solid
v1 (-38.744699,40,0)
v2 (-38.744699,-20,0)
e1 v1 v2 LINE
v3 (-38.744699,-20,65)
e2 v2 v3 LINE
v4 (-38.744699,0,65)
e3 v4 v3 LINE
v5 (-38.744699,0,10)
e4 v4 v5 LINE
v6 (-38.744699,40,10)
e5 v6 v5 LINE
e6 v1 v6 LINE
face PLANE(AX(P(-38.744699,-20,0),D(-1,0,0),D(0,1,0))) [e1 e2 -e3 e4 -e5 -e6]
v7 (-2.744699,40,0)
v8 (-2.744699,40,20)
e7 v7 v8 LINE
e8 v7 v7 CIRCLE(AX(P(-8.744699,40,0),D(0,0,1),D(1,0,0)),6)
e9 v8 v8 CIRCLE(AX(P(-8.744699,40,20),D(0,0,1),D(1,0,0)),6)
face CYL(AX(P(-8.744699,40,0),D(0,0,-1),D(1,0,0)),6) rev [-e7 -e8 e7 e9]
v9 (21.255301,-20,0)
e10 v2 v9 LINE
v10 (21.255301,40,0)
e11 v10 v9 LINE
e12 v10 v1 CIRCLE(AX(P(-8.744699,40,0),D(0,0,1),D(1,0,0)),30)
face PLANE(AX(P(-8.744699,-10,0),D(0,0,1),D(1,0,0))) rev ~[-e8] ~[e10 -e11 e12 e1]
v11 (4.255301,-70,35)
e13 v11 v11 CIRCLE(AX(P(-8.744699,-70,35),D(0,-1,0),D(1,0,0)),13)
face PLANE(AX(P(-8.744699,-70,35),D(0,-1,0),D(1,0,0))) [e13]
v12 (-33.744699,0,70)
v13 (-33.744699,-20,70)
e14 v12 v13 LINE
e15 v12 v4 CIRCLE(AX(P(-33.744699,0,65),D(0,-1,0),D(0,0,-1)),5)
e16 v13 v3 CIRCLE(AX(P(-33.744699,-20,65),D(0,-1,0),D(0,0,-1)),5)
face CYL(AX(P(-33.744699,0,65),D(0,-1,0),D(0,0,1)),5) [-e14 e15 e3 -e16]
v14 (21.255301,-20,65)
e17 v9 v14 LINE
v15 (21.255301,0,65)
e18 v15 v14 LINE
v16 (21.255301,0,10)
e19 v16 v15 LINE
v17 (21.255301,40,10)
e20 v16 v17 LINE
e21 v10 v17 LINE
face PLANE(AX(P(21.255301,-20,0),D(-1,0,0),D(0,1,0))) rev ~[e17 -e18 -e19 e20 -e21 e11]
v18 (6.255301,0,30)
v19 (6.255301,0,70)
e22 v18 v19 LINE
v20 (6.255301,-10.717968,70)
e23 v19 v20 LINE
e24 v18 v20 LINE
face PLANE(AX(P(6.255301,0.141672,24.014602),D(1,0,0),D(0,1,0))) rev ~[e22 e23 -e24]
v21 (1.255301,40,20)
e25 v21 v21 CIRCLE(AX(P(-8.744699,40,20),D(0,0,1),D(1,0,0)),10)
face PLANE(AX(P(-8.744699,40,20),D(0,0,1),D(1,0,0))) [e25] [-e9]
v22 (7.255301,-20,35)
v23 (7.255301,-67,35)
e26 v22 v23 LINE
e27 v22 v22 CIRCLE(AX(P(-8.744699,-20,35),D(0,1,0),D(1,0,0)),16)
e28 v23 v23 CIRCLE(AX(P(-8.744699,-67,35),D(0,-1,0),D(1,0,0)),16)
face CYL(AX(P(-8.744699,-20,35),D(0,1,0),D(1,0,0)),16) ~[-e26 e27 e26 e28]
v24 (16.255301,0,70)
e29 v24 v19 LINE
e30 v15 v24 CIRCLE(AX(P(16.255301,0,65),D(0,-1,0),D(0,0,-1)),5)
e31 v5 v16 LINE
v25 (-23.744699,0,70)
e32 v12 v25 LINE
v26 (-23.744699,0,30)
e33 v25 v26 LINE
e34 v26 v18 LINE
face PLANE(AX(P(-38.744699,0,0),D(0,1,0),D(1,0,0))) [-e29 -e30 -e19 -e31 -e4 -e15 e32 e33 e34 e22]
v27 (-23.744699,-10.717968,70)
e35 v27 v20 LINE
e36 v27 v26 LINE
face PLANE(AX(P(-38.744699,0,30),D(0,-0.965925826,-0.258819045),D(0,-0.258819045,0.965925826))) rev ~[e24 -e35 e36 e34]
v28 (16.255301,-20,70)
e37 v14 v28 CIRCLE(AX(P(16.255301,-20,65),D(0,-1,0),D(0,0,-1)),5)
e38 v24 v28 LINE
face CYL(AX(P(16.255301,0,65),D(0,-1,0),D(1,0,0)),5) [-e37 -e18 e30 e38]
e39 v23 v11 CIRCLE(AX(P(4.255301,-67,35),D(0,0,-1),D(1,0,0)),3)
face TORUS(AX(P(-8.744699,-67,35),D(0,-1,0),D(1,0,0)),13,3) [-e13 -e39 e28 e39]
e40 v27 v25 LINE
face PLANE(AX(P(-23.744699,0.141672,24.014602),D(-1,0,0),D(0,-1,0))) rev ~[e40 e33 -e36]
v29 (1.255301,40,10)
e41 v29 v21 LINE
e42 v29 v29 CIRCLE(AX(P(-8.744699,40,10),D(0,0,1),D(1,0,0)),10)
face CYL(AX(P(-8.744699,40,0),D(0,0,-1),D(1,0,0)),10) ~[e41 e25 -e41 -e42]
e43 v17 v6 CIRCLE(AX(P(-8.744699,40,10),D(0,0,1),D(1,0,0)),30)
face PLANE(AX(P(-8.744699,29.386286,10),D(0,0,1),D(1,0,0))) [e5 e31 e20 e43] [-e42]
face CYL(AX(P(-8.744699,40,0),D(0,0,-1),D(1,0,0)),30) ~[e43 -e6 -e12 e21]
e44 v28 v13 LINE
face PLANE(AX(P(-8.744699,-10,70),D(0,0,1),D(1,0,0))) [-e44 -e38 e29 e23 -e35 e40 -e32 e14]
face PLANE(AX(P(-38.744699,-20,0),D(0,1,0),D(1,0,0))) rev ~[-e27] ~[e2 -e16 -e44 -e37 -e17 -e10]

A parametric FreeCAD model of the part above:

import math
import FreeCAD as App
import Part
import Sketcher
Q = App.Units.Quantity


def edges_at(feature, points):
    """Names of the edges that pass closest to the given points."""
    edges = feature.Shape.Edges
    near = lambda p: min(range(len(edges)), key=lambda i: edges[i].distToShape(Part.Vertex(*p))[0])
    return sorted({f"Edge{near(p) + 1}" for p in points})


def add_polygon(sketch, points):
    """Adds a closed chain of lines whose ends are joined by coincident constraints."""
    first, n = sketch.GeometryCount, len(points)
    for a, b in zip(points, points[1:] + points[:1]):
        sketch.addGeometry(Part.LineSegment(App.Vector(*a, 0), App.Vector(*b, 0)), False)
    for i in range(n):
        sketch.addConstraint(Sketcher.Constraint("Coincident", first + i, 2, first + (i + 1) % n, 1))

doc = App.newDocument("Part")
body = doc.addObject("PartDesign::Body", "Body")

# Sketch on XY plane
sketch1 = body.newObject("Sketcher::SketchObject", "Sketch")
sketch1.AttachmentSupport = (doc.getObject("XY_Plane"), [""])
sketch1.MapMode = "FlatFace"
sketch1.addGeometry(Part.LineSegment(App.Vector(-38.744699, 40, 0), App.Vector(-38.744699, 0, 0)), False)
sketch1.addGeometry(Part.LineSegment(App.Vector(-38.744699, 0, 0), App.Vector(21.255301, 0, 0)), False)
sketch1.addGeometry(Part.LineSegment(App.Vector(21.255301, 0, 0), App.Vector(21.255301, 40, 0)), False)
sketch1.addGeometry(Part.ArcOfCircle(Part.Circle(App.Vector(-8.744699, 40, 0), App.Vector(0, 0, 1), 30), math.radians(0), math.radians(180)), False)
sketch1.addGeometry(Part.Circle(App.Vector(-8.744699, 40, 0), App.Vector(0, 0, 1), 10), False)
sketch1.addConstraint(Sketcher.Constraint("Coincident", 0, 2, 1, 1))
sketch1.addConstraint(Sketcher.Constraint("Coincident", 1, 2, 2, 1))
sketch1.addConstraint(Sketcher.Constraint("Tangent", 2, 2, 3, 1))
sketch1.addConstraint(Sketcher.Constraint("Tangent", 3, 2, 0, 1))
sketch1.addConstraint(Sketcher.Constraint("Vertical", 0))
sketch1.addConstraint(Sketcher.Constraint("Horizontal", 1))
sketch1.addConstraint(Sketcher.Constraint("Vertical", 2))
sketch1.addConstraint(Sketcher.Constraint("Coincident", 4, 3, 3, 3))
sketch1.addConstraint(Sketcher.Constraint("PointOnObject", 0, 2, -1))
sketch1.addConstraint(Sketcher.Constraint("Diameter", 4, 20.0))
sketch1.addConstraint(Sketcher.Constraint("Radius", 3, 30.0))
sketch1.addConstraint(Sketcher.Constraint("DistanceY", 0, 2, 0, 1, 40.0))
sketch1.addConstraint(Sketcher.Constraint("DistanceX", 3, 3, -1, 1, 8.744699))
pad1 = body.newObject("PartDesign::Pad", "Pad")
pad1.Profile = sketch1
pad1.Length = 10

# Sketch on XY plane
sketch2 = body.newObject("Sketcher::SketchObject", "Sketch001")
sketch2.AttachmentSupport = (doc.getObject("XY_Plane"), [""])
sketch2.MapMode = "FlatFace"
sketch2.addGeometry(Part.Circle(App.Vector(-8.744699, 40, 0), App.Vector(0, 0, 1), 10), False)
sketch2.addGeometry(Part.Circle(App.Vector(-8.744699, 40, 0), App.Vector(0, 0, 1), 6), False)
sketch2.addConstraint(Sketcher.Constraint("Coincident", 1, 3, 0, 3))
sketch2.addConstraint(Sketcher.Constraint("Diameter", 0, 20.0))
sketch2.addConstraint(Sketcher.Constraint("Diameter", 1, 12.0))
sketch2.addConstraint(Sketcher.Constraint("DistanceY", -1, 1, 0, 3, 40.0))
sketch2.addConstraint(Sketcher.Constraint("DistanceX", 0, 3, -1, 1, 8.744699))
pad2 = body.newObject("PartDesign::Pad", "Pad001")
pad2.Profile = sketch2
pad2.Length = 20

# Sketch on XY plane
sketch3 = body.newObject("Sketcher::SketchObject", "Sketch002")
sketch3.AttachmentSupport = (doc.getObject("XY_Plane"), [""])
sketch3.MapMode = "FlatFace"
add_polygon(sketch3, [(-38.744699, 0), (-38.744699, -20), (21.255301, -20), (21.255301, 0)])  # lines 0-3
sketch3.addConstraint(Sketcher.Constraint("Vertical", 0))
sketch3.addConstraint(Sketcher.Constraint("Horizontal", 1))
sketch3.addConstraint(Sketcher.Constraint("Vertical", 2))
sketch3.addConstraint(Sketcher.Constraint("Horizontal", 3))
sketch3.addConstraint(Sketcher.Constraint("PointOnObject", 2, 2, -1))
sketch3.addConstraint(Sketcher.Constraint("DistanceX", 1, 1, 1, 2, 60.0))
sketch3.addConstraint(Sketcher.Constraint("DistanceY", 0, 2, 0, 1, 20.0))
sketch3.addConstraint(Sketcher.Constraint("DistanceX", 0, 2, -1, 1, 38.744699))
pad3 = body.newObject("PartDesign::Pad", "Pad002")
pad3.Profile = sketch3
pad3.Length = 70

# Sketch on XZ plane
sketch4 = body.newObject("Sketcher::SketchObject", "Sketch003")
sketch4.AttachmentSupport = (doc.getObject("XZ_Plane"), [""])
sketch4.MapMode = "FlatFace"
sketch4.AttachmentOffset = App.Placement(App.Vector(0, 0, 20), App.Rotation())
sketch4.addGeometry(Part.Circle(App.Vector(-8.744699, 35, 0), App.Vector(0, 0, 1), 16), False)
sketch4.addConstraint(Sketcher.Constraint("Diameter", 0, 32.0))
sketch4.addConstraint(Sketcher.Constraint("DistanceY", -1, 1, 0, 3, 35.0))
sketch4.addConstraint(Sketcher.Constraint("DistanceX", 0, 3, -1, 1, 8.744699))
pad4 = body.newObject("PartDesign::Pad", "Pad003")
pad4.Profile = sketch4
pad4.Length = 50
doc.recompute()

fillet = body.newObject("PartDesign::Fillet", "Fillet")
fillet.Base = (pad4, edges_at(pad4, [(-24.745, -70, 35)]))
fillet.Radius = 3

# Sketch on YZ plane
sketch5 = body.newObject("Sketcher::SketchObject", "Sketch004")
sketch5.AttachmentSupport = (doc.getObject("YZ_Plane"), [""])
sketch5.MapMode = "FlatFace"
sketch5.AttachmentOffset = App.Placement(App.Vector(0, 0, -38.744699), App.Rotation())
add_polygon(sketch5, [(-10.717968, 70), (0, 70), (0, 30)])  # lines 0-2
sketch5.addConstraint(Sketcher.Constraint("Horizontal", 0))
sketch5.addConstraint(Sketcher.Constraint("Vertical", 1))
sketch5.addConstraint(Sketcher.Constraint("PointOnObject", 0, 2, -2))
sketch5.addConstraint(Sketcher.Constraint("DistanceY", 1, 2, 1, 1, 40.0))
sketch5.addConstraint(Sketcher.Constraint("Angle", 2, Q("105 deg")))
sketch5.addConstraint(Sketcher.Constraint("DistanceY", -1, 1, 0, 2, 70.0))
pocket1 = body.newObject("PartDesign::Pocket", "Pocket")
pocket1.Profile = sketch5
pocket1.Length = 65.4
pocket1.Reversed = True

# Sketch on YZ plane
sketch6 = body.newObject("Sketcher::SketchObject", "Sketch005")
sketch6.AttachmentSupport = (doc.getObject("YZ_Plane"), [""])
sketch6.MapMode = "FlatFace"
sketch6.AttachmentOffset = App.Placement(App.Vector(0, 0, -38.744699), App.Rotation())
add_polygon(sketch6, [(0, 10), (40, 10), (40, 0), (-20, 0), (-20, 70), (0, 70)])  # lines 0-5
sketch6.addConstraint(Sketcher.Constraint("Horizontal", 0))
sketch6.addConstraint(Sketcher.Constraint("Vertical", 1))
sketch6.addConstraint(Sketcher.Constraint("Horizontal", 2))
sketch6.addConstraint(Sketcher.Constraint("Vertical", 3))
sketch6.addConstraint(Sketcher.Constraint("Horizontal", 4))
sketch6.addConstraint(Sketcher.Constraint("Vertical", 5))
sketch6.addConstraint(Sketcher.Constraint("PointOnObject", 1, 2, -1))
sketch6.addConstraint(Sketcher.Constraint("PointOnObject", 4, 2, -2))
sketch6.addConstraint(Sketcher.Constraint("Equal", 2, 5))
sketch6.addConstraint(Sketcher.Constraint("DistanceX", 0, 1, 0, 2, 40.0))
sketch6.addConstraint(Sketcher.Constraint("DistanceX", 2, 2, 2, 1, 60.0))
sketch6.addConstraint(Sketcher.Constraint("DistanceY", 1, 2, 1, 1, 10.0))
pad5 = body.newObject("PartDesign::Pad", "Pad004")
pad5.Profile = sketch6
pad5.Length = 15

# Sketch on YZ plane
sketch7 = body.newObject("Sketcher::SketchObject", "Sketch006")
sketch7.AttachmentSupport = (doc.getObject("YZ_Plane"), [""])
sketch7.MapMode = "FlatFace"
sketch7.AttachmentOffset = App.Placement(App.Vector(0, 0, 21.255301), App.Rotation())
add_polygon(sketch7, [(0, 10), (0, 70), (-20, 70), (-20, 0), (40, 0), (40, 10)])  # lines 0-5
sketch7.addConstraint(Sketcher.Constraint("Vertical", 0))
sketch7.addConstraint(Sketcher.Constraint("Horizontal", 1))
sketch7.addConstraint(Sketcher.Constraint("Vertical", 2))
sketch7.addConstraint(Sketcher.Constraint("Horizontal", 3))
sketch7.addConstraint(Sketcher.Constraint("Vertical", 4))
sketch7.addConstraint(Sketcher.Constraint("Horizontal", 5))
sketch7.addConstraint(Sketcher.Constraint("PointOnObject", 0, 2, -2))
sketch7.addConstraint(Sketcher.Constraint("PointOnObject", 2, 2, -1))
sketch7.addConstraint(Sketcher.Constraint("Equal", 3, 0))
sketch7.addConstraint(Sketcher.Constraint("DistanceX", 1, 2, 1, 1, 20.0))
sketch7.addConstraint(Sketcher.Constraint("DistanceX", 3, 1, 3, 2, 60.0))
sketch7.addConstraint(Sketcher.Constraint("DistanceY", 2, 2, 2, 1, 70.0))
pad6 = body.newObject("PartDesign::Pad", "Pad005")
pad6.Profile = sketch7
pad6.Length = 15
pad6.Reversed = True
doc.recompute()

fillet2 = body.newObject("PartDesign::Fillet", "Fillet001")
fillet2.Base = (pad6, edges_at(pad6, [(21.255, -10, 70)]))
fillet2.Radius = 5
doc.recompute()

fillet3 = body.newObject("PartDesign::Fillet", "Fillet002")
fillet3.Base = (fillet2, edges_at(fillet2, [(-38.745, -10, 70)]))
fillet3.Radius = 5

doc.recompute()
